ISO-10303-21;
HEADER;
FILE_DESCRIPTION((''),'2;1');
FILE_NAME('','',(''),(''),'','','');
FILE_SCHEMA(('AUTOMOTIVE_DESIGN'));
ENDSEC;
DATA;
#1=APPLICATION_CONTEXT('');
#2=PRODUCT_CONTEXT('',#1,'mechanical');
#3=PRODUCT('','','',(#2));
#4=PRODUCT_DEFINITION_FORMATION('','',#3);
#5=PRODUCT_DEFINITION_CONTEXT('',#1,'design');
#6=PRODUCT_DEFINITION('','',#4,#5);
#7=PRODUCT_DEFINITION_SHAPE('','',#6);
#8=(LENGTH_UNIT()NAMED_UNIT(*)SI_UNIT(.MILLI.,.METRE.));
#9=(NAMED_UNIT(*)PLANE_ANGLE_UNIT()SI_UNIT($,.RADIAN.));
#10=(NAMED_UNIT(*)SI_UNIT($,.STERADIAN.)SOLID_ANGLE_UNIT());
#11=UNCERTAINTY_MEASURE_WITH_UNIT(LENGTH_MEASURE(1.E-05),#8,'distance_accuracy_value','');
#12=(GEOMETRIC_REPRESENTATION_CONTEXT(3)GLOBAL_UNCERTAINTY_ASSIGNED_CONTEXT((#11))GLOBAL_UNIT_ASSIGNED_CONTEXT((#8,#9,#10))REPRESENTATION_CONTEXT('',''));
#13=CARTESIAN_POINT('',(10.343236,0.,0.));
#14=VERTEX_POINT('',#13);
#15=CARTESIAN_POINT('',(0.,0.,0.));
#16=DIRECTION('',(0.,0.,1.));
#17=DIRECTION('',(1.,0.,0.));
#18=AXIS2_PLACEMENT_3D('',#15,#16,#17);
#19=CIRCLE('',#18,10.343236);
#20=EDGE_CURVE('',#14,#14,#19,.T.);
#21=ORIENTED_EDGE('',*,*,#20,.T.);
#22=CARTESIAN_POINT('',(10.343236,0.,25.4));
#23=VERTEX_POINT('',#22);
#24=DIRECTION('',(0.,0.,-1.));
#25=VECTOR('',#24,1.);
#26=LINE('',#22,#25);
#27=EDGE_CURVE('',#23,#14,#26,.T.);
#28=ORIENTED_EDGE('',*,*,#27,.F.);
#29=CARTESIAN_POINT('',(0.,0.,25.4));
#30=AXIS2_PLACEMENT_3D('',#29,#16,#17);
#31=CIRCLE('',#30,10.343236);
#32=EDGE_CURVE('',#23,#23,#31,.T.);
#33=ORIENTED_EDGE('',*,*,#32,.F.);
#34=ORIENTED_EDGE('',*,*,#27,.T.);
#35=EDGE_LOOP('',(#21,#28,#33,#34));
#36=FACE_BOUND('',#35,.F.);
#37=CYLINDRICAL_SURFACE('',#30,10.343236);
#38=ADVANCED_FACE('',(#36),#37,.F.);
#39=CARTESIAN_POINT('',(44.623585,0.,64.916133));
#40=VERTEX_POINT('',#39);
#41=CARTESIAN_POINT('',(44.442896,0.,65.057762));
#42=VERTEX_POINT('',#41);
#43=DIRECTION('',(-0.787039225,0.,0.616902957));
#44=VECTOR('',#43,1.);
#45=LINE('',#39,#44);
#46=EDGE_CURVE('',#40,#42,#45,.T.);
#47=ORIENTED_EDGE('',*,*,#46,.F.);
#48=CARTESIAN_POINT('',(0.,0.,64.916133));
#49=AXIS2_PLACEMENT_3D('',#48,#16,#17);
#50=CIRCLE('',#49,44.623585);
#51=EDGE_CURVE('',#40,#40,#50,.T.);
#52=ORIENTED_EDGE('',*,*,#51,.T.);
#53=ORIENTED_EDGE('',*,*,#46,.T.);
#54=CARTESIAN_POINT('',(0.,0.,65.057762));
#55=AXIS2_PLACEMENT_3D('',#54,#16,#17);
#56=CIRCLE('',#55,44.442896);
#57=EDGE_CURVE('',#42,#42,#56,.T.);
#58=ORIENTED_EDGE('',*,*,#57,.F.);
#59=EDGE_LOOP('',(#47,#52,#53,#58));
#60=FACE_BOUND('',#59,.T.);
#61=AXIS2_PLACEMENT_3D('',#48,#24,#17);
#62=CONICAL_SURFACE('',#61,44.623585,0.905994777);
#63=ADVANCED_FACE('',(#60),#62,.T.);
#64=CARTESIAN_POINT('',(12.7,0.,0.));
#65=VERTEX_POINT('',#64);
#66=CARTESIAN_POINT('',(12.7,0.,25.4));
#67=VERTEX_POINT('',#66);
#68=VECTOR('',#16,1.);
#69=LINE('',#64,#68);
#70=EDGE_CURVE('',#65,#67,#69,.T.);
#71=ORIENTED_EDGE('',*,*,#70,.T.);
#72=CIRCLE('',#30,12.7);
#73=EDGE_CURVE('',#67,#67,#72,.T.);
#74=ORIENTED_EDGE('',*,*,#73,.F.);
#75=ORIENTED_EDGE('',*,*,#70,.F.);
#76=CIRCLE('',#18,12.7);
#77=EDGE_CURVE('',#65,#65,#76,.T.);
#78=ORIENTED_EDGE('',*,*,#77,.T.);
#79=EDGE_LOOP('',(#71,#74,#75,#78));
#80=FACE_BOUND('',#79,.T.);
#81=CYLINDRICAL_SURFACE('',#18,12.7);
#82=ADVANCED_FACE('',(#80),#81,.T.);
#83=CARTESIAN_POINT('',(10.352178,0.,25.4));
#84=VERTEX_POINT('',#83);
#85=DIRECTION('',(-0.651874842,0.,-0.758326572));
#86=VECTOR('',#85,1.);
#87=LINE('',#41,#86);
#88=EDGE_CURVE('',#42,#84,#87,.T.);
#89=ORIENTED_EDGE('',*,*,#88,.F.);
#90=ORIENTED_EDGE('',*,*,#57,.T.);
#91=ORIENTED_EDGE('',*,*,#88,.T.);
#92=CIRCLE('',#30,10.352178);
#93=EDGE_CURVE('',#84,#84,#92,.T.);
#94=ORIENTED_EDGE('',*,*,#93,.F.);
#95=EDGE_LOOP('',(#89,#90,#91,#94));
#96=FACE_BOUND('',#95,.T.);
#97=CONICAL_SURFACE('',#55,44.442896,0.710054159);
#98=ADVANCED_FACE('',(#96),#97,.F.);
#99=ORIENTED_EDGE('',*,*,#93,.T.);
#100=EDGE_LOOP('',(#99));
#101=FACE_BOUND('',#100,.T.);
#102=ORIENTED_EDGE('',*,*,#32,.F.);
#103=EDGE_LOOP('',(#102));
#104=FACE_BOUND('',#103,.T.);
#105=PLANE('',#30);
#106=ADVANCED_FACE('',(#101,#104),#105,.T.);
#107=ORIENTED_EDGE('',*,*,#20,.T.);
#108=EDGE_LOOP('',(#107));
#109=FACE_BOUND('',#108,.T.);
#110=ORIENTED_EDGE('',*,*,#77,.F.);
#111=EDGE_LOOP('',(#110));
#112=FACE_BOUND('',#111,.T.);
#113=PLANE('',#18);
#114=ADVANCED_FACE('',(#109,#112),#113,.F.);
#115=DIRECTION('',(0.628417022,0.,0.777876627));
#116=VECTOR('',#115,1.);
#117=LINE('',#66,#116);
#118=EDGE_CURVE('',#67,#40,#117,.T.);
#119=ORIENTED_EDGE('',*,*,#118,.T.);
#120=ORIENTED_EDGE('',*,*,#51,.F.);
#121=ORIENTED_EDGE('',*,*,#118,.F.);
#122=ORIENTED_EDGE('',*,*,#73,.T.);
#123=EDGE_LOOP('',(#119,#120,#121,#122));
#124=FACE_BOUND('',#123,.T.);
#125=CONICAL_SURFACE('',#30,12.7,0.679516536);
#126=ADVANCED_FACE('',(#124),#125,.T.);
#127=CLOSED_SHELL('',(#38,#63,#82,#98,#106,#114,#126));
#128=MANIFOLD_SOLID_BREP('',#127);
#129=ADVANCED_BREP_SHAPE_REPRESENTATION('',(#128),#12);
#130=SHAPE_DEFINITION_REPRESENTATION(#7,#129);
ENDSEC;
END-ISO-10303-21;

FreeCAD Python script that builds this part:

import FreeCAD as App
import Part
import Sketcher
from FreeCAD import Vector
Q = App.Units.Quantity


def add_polygon(sketch, points):
    """Adds a closed chain of lines whose ends are joined by coincident constraints."""
    first, n = sketch.GeometryCount, len(points)
    for a, b in zip(points, points[1:] + points[:1]):
        sketch.addGeometry(Part.LineSegment(App.Vector(*a, 0), App.Vector(*b, 0)), False)
    for i in range(n):
        sketch.addConstraint(Sketcher.Constraint("Coincident", first + i, 2, first + (i + 1) % n, 1))

doc = App.newDocument("Part")
body = doc.addObject("PartDesign::Body", "Body")

sketch1 = body.newObject("Sketcher::SketchObject", "Sketch")
sketch1.AttachmentSupport = (doc.getObject("XZ_Plane"), [""])
sketch1.MapMode = "FlatFace"
add_polygon(sketch1, [(0, 25.4), (0, 0), (12.7, 0), (12.7, 25.4), (44.62, 64.92), (44.44, 65.06), (10.35, 25.4)])
sketch1.addConstraint([
    Sketcher.Constraint("Vertical", 0),
    Sketcher.Constraint("Horizontal", 1),
    Sketcher.Constraint("Vertical", 2),
    Sketcher.Constraint("Horizontal", 6),
    Sketcher.Constraint("Coincident", 0, 2, -1, 1),
    Sketcher.Constraint("Horizontal", 2, 2, 5, 2),
    Sketcher.Constraint("DistanceY", 0, 2, 0, 1, Q("1 in")),
    Sketcher.Constraint("Distance", 3, Q("2 in")),
    Sketcher.Constraint("DistanceX", 1, 1, 1, 2, Q("0.5 in")),
    Sketcher.Constraint("Distance", 4, Q("0.229581 mm")),
    Sketcher.Constraint("DistanceX", 6, 2, 6, 1, Q("10.352178 mm")),
    Sketcher.Constraint("DistanceY", -1, 1, 4, 2, Q("65.057762 mm")),
    Sketcher.Constraint("DistanceX", 4, 2, 3, 2, Q("0.180689 mm")),
])
revolution = body.newObject("PartDesign::Revolution", "Revolution")
revolution.Profile = sketch1
revolution.ReferenceAxis = (sketch1, ["V_Axis"])
revolution.Angle = 360

sketch2 = body.newObject("Sketcher::SketchObject", "Sketch001")
sketch2.AttachmentSupport = (doc.getObject("XY_Plane"), [""])
sketch2.MapMode = "FlatFace"
sketch2.AttachmentOffset = App.Placement(Vector(0, 0, 1 * 25.4), App.Rotation())
sketch2.addGeometry(Part.Circle(Vector(0, 0, 0), Vector(0, 0, 1), 10), False)
sketch2.addConstraint([
    Sketcher.Constraint("Coincident", 0, 3, -1, 1),
    Sketcher.Constraint("Diameter", 0, Q("20.686472 mm")),
])
pocket1 = body.newObject("PartDesign::Pocket", "Pocket")
pocket1.Profile = sketch2
pocket1.Length = Q("1.19 in")

doc.recompute()
